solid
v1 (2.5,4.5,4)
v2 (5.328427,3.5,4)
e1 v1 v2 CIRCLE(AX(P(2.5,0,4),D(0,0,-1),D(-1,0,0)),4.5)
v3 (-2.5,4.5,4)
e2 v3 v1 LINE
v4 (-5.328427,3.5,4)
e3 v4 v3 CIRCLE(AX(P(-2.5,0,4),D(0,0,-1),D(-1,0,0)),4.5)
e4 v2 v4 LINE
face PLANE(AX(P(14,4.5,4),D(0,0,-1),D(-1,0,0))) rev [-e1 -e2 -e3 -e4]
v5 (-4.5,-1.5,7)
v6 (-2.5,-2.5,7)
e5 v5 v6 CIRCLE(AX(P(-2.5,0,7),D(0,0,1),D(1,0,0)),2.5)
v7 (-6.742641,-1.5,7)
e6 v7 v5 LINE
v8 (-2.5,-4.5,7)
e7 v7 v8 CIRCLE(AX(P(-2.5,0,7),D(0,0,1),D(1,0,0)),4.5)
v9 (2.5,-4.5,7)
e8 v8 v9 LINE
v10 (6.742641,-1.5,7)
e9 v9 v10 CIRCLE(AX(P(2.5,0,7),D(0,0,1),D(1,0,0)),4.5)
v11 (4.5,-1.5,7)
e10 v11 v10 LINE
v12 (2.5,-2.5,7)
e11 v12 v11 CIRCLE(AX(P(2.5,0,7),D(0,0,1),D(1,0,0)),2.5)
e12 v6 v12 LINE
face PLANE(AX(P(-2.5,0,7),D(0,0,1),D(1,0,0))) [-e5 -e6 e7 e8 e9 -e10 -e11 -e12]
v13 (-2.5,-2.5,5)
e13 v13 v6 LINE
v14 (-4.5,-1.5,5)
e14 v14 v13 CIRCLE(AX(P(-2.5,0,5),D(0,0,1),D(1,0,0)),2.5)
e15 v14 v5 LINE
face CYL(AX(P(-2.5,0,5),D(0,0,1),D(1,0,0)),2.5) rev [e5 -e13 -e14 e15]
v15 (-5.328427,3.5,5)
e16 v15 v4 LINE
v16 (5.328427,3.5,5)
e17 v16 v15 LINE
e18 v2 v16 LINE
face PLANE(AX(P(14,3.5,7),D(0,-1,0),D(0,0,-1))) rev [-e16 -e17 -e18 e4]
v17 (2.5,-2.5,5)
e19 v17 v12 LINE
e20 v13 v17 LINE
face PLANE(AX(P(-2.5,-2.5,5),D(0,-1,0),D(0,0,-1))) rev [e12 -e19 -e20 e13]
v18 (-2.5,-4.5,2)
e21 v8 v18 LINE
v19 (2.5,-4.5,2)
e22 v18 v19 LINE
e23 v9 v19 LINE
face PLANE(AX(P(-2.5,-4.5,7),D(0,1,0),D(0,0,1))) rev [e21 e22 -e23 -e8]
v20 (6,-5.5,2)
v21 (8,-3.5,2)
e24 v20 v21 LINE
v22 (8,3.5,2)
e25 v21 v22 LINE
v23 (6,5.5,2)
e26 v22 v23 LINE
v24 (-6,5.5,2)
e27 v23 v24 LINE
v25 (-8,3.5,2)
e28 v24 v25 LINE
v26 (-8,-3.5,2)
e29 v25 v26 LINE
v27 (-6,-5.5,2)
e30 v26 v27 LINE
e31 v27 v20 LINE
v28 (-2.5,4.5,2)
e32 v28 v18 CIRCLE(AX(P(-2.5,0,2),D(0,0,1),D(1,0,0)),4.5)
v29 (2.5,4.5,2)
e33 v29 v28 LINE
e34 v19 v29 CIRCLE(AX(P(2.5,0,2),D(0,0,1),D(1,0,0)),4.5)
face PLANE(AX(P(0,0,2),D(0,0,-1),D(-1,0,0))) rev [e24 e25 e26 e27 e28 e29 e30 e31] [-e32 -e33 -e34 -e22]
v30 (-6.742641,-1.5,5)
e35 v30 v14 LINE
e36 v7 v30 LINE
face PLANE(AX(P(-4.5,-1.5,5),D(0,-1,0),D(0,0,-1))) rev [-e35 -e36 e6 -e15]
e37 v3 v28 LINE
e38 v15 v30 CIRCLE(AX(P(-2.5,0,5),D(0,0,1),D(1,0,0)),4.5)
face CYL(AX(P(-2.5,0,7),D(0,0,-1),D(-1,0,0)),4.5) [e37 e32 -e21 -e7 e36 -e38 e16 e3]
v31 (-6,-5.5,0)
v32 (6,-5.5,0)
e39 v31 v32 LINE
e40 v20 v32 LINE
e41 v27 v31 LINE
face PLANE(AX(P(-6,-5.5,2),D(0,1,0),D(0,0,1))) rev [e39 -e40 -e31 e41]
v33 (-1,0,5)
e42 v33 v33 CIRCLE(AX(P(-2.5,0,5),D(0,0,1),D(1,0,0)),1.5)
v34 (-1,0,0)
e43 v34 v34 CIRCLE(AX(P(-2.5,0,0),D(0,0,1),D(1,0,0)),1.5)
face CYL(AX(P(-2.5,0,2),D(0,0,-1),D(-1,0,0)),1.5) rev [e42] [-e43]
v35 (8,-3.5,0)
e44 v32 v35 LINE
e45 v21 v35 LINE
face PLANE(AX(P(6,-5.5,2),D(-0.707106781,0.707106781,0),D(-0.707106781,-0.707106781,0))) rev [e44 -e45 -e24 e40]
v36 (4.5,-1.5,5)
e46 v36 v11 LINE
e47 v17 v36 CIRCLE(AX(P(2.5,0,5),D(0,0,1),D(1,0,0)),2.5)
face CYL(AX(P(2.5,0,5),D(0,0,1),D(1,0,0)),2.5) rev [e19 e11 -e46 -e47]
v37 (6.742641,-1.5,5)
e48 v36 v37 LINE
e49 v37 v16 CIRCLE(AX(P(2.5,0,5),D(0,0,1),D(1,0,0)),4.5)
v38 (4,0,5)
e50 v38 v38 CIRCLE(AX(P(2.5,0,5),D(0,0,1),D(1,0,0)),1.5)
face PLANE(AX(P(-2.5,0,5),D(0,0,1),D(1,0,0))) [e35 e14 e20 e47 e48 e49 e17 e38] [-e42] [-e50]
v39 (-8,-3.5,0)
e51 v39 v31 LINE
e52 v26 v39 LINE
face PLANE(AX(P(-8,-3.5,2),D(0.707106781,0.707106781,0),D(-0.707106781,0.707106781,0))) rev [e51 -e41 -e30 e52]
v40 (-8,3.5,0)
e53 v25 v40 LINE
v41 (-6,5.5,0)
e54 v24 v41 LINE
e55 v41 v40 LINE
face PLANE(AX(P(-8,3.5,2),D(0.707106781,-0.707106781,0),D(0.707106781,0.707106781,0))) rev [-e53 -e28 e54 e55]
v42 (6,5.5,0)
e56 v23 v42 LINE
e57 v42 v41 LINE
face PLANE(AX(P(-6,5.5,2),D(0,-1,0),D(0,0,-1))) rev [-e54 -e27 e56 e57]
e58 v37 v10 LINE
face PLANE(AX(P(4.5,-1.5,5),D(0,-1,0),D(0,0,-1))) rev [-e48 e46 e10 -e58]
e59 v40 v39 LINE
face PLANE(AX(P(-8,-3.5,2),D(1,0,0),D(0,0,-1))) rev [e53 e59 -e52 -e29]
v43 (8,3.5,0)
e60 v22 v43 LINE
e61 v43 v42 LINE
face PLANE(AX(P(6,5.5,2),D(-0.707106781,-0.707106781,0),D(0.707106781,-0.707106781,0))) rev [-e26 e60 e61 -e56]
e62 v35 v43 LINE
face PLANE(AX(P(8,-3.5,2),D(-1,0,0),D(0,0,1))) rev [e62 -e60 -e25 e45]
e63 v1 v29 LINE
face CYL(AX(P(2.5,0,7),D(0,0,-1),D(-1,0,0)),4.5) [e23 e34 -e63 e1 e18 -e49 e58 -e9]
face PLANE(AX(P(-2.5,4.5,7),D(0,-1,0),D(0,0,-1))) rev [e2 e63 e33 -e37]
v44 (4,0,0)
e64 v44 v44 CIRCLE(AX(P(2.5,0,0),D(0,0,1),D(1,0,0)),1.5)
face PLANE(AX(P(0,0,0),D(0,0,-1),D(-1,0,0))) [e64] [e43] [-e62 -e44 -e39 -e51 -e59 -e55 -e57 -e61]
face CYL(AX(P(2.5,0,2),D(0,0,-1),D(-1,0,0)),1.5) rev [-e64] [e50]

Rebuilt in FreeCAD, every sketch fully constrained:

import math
import FreeCAD as App
import Part
import Sketcher
from FreeCAD import Vector


def add_polygon(sketch, points):
    """Adds a closed chain of lines whose ends are joined by coincident constraints."""
    first, n = sketch.GeometryCount, len(points)
    for a, b in zip(points, points[1:] + points[:1]):
        sketch.addGeometry(Part.LineSegment(App.Vector(*a, 0), App.Vector(*b, 0)), False)
    for i in range(n):
        sketch.addConstraint(Sketcher.Constraint("Coincident", first + i, 2, first + (i + 1) % n, 1))

doc = App.newDocument("Part")
body = doc.addObject("PartDesign::Body", "Body")

sketch1 = doc.addObject("Sketcher::SketchObject", "Sketch")
body.addObject(sketch1)
sketch1.AttachmentSupport = (doc.XY_Plane, [""])
sketch1.MapMode = "FlatFace"
add_polygon(sketch1, [(-6, 5.5), (-8, 3.5), (-8, -3.5), (-6, -5.5), (6, -5.5), (8, -3.5), (8, 3.5), (6, 5.5)])
sketch1.addGeometry(Part.Circle(Vector(2.5, 0, 0), Vector(0, 0, 1), 1.5), False)
sketch1.addGeometry(Part.Circle(Vector(-2.5, 0, 0), Vector(0, 0, 1), 1.5), False)
sketch1.addConstraint([
    Sketcher.Constraint("Vertical", 1),
    Sketcher.Constraint("Horizontal", 3),
    Sketcher.Constraint("Vertical", 5),
    Sketcher.Constraint("Horizontal", 7),
    Sketcher.Constraint("Equal", 8, 9),
    Sketcher.Constraint("Symmetric", 8, 3, 9, 3, -1, 1),
    Sketcher.Constraint("Symmetric", 0, 2, 4, 2, -1, 1),
    Sketcher.Constraint("Symmetric", 2, 2, 6, 2, -1, 1),
    Sketcher.Constraint("PointOnObject", 8, 3, -1),
    Sketcher.Constraint("Perpendicular", 0, 2),
    Sketcher.Constraint("Perpendicular", 2, 4),
    Sketcher.Constraint("Perpendicular", 4, 6),
    Sketcher.Constraint("Horizontal", 1, 2, 4, 2),
    Sketcher.Constraint("Vertical", 3, 2, 6, 2),
    Sketcher.Constraint("Diameter", 8, 3.0),
    Sketcher.Constraint("DistanceX", 3, 1, 3, 2, 12.0),
    Sketcher.Constraint("DistanceY", 1, 2, 1, 1, 7.0),
    Sketcher.Constraint("DistanceX", 0, 2, -1, 1, 8.0),
    Sketcher.Constraint("DistanceX", 9, 3, 8, 3, 5.0),
])
pad1 = doc.addObject("PartDesign::Pad", "Pad")
body.addObject(pad1)
pad1.Profile = sketch1
pad1.Length = 2

sketch2 = doc.addObject("Sketcher::SketchObject", "Sketch001")
body.addObject(sketch2)
sketch2.AttachmentSupport = (doc.XY_Plane, [""])
sketch2.MapMode = "FlatFace"
sketch2.AttachmentOffset = App.Placement(Vector(0, 0, 2), App.Rotation())
sketch2.addGeometry([
    Part.LineSegment(Vector(2.5, 4.5, 0), Vector(-2.5, 4.5, 0)),
    Part.ArcOfCircle(Part.Circle(Vector(-2.5, 0, 0), Vector(0, 0, 1), 4.5), math.radians(90), math.radians(270)),
    Part.LineSegment(Vector(-2.5, -4.5, 0), Vector(2.5, -4.5, 0)),
    Part.ArcOfCircle(Part.Circle(Vector(2.5, 0, 0), Vector(0, 0, 1), 4.5), math.radians(-90), math.radians(90)),
    Part.Circle(Vector(2.5, 0, 0), Vector(0, 0, 1), 1.5),
    Part.Circle(Vector(-2.5, 0, 0), Vector(0, 0, 1), 1.5),
], False)
sketch2.addConstraint([
    Sketcher.Constraint("Tangent", 0, 2, 1, 1),
    Sketcher.Constraint("Tangent", 1, 2, 2, 1),
    Sketcher.Constraint("Tangent", 2, 2, 3, 1),
    Sketcher.Constraint("Tangent", 3, 2, 0, 1),
    Sketcher.Constraint("Horizontal", 0),
    Sketcher.Constraint("Horizontal", 2),
    Sketcher.Constraint("Coincident", 4, 3, 3, 3),
    Sketcher.Constraint("Coincident", 5, 3, 1, 3),
    Sketcher.Constraint("Equal", 4, 5),
    Sketcher.Constraint("Symmetric", 1, 3, 3, 3, -1, 1),
    Sketcher.Constraint("Diameter", 4, 3.0),
    Sketcher.Constraint("Radius", 1, 4.5),
    Sketcher.Constraint("DistanceX", 0, 2, 0, 1, 5.0),
])
pad2 = doc.addObject("PartDesign::Pad", "Pad001")
body.addObject(pad2)
pad2.Profile = sketch2
pad2.Length = 5

sketch3 = doc.addObject("Sketcher::SketchObject", "Sketch002")
body.addObject(sketch3)
sketch3.AttachmentSupport = (doc.XY_Plane, [""])
sketch3.MapMode = "FlatFace"
sketch3.AttachmentOffset = App.Placement(Vector(0, 0, 7), App.Rotation())
sketch3.addGeometry([
    Part.LineSegment(Vector(-2.5, -2.5, 0), Vector(2.5, -2.5, 0)),
    Part.ArcOfCircle(Part.Circle(Vector(2.5, 0, 0), Vector(0, 0, 1), 2.5), math.radians(-90), math.radians(-37)),
    Part.LineSegment(Vector(4.5, -1.5, 0), Vector(7.3, -1.5, 0)),
    Part.LineSegment(Vector(7.3, -1.5, 0), Vector(7, 3.5, 0)),
    Part.LineSegment(Vector(7, 3.5, 0), Vector(-6.6, 3.5, 0)),
    Part.LineSegment(Vector(-6.6, 3.5, 0), Vector(-7.5, -1.5, 0)),
    Part.LineSegment(Vector(-7.5, -1.5, 0), Vector(-4.5, -1.5, 0)),
    Part.ArcOfCircle(Part.Circle(Vector(-2.5, 0, 0), Vector(0, 0, 1), 2.5), math.radians(-143), math.radians(-90)),
], False)
sketch3.addConstraint([
    Sketcher.Constraint("Tangent", 0, 2, 1, 1),
    Sketcher.Constraint("Coincident", 1, 2, 2, 1),
    Sketcher.Constraint("Coincident", 2, 2, 3, 1),
    Sketcher.Constraint("Coincident", 3, 2, 4, 1),
    Sketcher.Constraint("Coincident", 4, 2, 5, 1),
    Sketcher.Constraint("Coincident", 5, 2, 6, 1),
    Sketcher.Constraint("Coincident", 6, 2, 7, 1),
    Sketcher.Constraint("Tangent", 7, 2, 0, 1),
    Sketcher.Constraint("Horizontal", 0),
    Sketcher.Constraint("Horizontal", 2),
    Sketcher.Constraint("Horizontal", 4),
    Sketcher.Constraint("Horizontal", 6),
    Sketcher.Constraint("Equal", 1, 7),
    Sketcher.Constraint("Symmetric", 1, 3, 7, 3, -1, 1),
    Sketcher.Constraint("Horizontal", 2, 2, 5, 2),
    Sketcher.Constraint("Radius", 1, 2.5),
    Sketcher.Constraint("DistanceX", 0, 1, 0, 2, 5.0),
    Sketcher.Constraint("DistanceX", 0, 2, 1, 2, 2.0),
    Sketcher.Constraint("DistanceY", 2, 2, 3, 2, 5.0),
    Sketcher.Constraint("DistanceX", 2, 1, 2, 2, 2.791771),
    Sketcher.Constraint("DistanceX", 6, 1, 6, 2, 2.982128),
    Sketcher.Constraint("DistanceX", 4, 2, 4, 1, 13.590804),
    Sketcher.Constraint("DistanceX", -1, 1, 3, 2, 6.980261),
])
pocket1 = doc.addObject("PartDesign::Pocket", "Pocket")
body.addObject(pocket1)
pocket1.Profile = sketch3
pocket1.Length = 2

sketch4 = doc.addObject("Sketcher::SketchObject", "Sketch003")
body.addObject(sketch4)
sketch4.AttachmentSupport = (doc.YZ_Plane, [""])
sketch4.MapMode = "FlatFace"
sketch4.AttachmentOffset = App.Placement(Vector(0, 0, -8), App.Rotation())
add_polygon(sketch4, [(4.5, 4), (3.5, 4), (3.5, 7), (4.5, 7)])
sketch4.addConstraint([
    Sketcher.Constraint("Horizontal", 0),
    Sketcher.Constraint("Vertical", 1),
    Sketcher.Constraint("Horizontal", 2),
    Sketcher.Constraint("Vertical", 3),
    Sketcher.Constraint("DistanceX", 0, 2, 0, 1, 1.0),
    Sketcher.Constraint("DistanceY", 1, 1, 1, 2, 3.0),
    Sketcher.Constraint("DistanceY", -1, 1, 0, 2, 4.0),
    Sketcher.Constraint("DistanceX", -1, 1, 0, 2, 3.5),
])
pocket2 = doc.addObject("PartDesign::Pocket", "Pocket001")
body.addObject(pocket2)
pocket2.Profile = sketch4
pocket2.Length = 22
pocket2.Reversed = True

doc.recompute()
